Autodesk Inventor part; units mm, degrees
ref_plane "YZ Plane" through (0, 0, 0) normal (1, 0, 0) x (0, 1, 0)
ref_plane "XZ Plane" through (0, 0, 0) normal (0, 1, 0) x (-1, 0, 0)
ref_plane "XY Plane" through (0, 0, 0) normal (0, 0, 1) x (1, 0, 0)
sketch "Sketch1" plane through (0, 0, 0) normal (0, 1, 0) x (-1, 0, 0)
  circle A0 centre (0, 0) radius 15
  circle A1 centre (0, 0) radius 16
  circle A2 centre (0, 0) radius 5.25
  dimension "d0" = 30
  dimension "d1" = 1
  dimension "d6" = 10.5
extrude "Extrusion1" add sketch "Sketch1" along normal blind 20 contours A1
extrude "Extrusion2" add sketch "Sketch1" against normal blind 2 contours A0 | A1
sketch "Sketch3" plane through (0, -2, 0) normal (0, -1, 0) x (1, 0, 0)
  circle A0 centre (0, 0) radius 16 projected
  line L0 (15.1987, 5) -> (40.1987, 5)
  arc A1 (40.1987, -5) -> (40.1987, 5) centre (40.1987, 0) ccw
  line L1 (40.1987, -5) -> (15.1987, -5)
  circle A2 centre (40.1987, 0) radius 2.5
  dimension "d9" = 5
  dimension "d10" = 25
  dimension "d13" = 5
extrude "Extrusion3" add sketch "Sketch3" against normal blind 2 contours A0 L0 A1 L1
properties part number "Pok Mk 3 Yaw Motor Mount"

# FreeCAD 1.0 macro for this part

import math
import FreeCAD as App
import Part
import Sketcher
Q = App.Units.Quantity

doc = App.newDocument("Part")
body = doc.addObject("PartDesign::Body", "Body")

sketch1 = doc.addObject("Sketcher::SketchObject", "Sketch")
body.addObject(sketch1)
sketch1.AttachmentSupport = (doc.XZ_Plane, [""])
sketch1.MapMode = "FlatFace"
sketch1.addGeometry([
    Part.Circle(App.Vector(0, 0, 0), App.Vector(0, 0, 1), 16),
    Part.Circle(App.Vector(0, 0, 0), App.Vector(0, 0, 1), 15),
], False)
sketch1.addConstraint([
    Sketcher.Constraint("Coincident", 0, 3, -1, 1),
    Sketcher.Constraint("Coincident", 1, 3, -1, 1),
    Sketcher.Constraint("Diameter", 1, Q("30 mm")),
    Sketcher.Constraint("Diameter", 0, Q("32 mm")),
])
pad1 = doc.addObject("PartDesign::Pad", "Pad")
body.addObject(pad1)
pad1.Profile = sketch1
pad1.Length = 20
pad1.Reversed = True

sketch2 = doc.addObject("Sketcher::SketchObject", "Sketch001")
body.addObject(sketch2)
sketch2.AttachmentSupport = (doc.XZ_Plane, [""])
sketch2.MapMode = "FlatFace"
sketch2.addGeometry([
    Part.Circle(App.Vector(0, 0, 0), App.Vector(0, 0, 1), 16),
    Part.Circle(App.Vector(0, 0, 0), App.Vector(0, 0, 1), 5),
], False)
sketch2.addConstraint([
    Sketcher.Constraint("Coincident", 0, 3, -1, 1),
    Sketcher.Constraint("Coincident", 1, 3, -1, 1),
    Sketcher.Constraint("Diameter", 1, Q("10.5 mm")),
    Sketcher.Constraint("Diameter", 0, Q("32 mm")),
])
pad2 = doc.addObject("PartDesign::Pad", "Pad001")
body.addObject(pad2)
pad2.Profile = sketch2
pad2.Length = 2

sketch3 = doc.addObject("Sketcher::SketchObject", "Sketch002")
body.addObject(sketch3)
sketch3.AttachmentSupport = (doc.XZ_Plane, [""])
sketch3.MapMode = "FlatFace"
sketch3.AttachmentOffset = App.Placement(App.Vector(0, 0, 2), App.Rotation())
sketch3.addGeometry([
    Part.ArcOfCircle(Part.Circle(App.Vector(0, 0, 0), App.Vector(0, 0, 1), 16), math.radians(-18), math.radians(18)),
    Part.LineSegment(App.Vector(15.2, -5, 0), App.Vector(40.2, -5, 0)),
    Part.ArcOfCircle(Part.Circle(App.Vector(40.2, 0, 0), App.Vector(0, 0, 1), 5), math.radians(-90), math.radians(90)),
    Part.LineSegment(App.Vector(40.2, 5, 0), App.Vector(15.2, 5, 0)),
    Part.Circle(App.Vector(40.2, 0, 0), App.Vector(0, 0, 1), 2.5),
], False)
sketch3.addConstraint([
    Sketcher.Constraint("Coincident", 0, 1, 1, 1),
    Sketcher.Constraint("Tangent", 1, 2, 2, 1),
    Sketcher.Constraint("Tangent", 2, 2, 3, 1),
    Sketcher.Constraint("Coincident", 3, 2, 0, 2),
    Sketcher.Constraint("Horizontal", 1),
    Sketcher.Constraint("Horizontal", 3),
    Sketcher.Constraint("Coincident", 0, 3, -1, 1),
    Sketcher.Constraint("Coincident", 4, 3, 2, 3),
    Sketcher.Constraint("PointOnObject", 2, 3, -1),
    Sketcher.Constraint("Diameter", 4, Q("5 mm")),
    Sketcher.Constraint("Radius", 2, Q("5 mm")),
    Sketcher.Constraint("DistanceX", 1, 1, 1, 2, Q("25 mm")),
    Sketcher.Constraint("Radius", 0, Q("16 mm")),
])
pad3 = doc.addObject("PartDesign::Pad", "Pad002")
body.addObject(pad3)
pad3.Profile = sketch3
pad3.Length = 2
pad3.Reversed = True

doc.recompute()
